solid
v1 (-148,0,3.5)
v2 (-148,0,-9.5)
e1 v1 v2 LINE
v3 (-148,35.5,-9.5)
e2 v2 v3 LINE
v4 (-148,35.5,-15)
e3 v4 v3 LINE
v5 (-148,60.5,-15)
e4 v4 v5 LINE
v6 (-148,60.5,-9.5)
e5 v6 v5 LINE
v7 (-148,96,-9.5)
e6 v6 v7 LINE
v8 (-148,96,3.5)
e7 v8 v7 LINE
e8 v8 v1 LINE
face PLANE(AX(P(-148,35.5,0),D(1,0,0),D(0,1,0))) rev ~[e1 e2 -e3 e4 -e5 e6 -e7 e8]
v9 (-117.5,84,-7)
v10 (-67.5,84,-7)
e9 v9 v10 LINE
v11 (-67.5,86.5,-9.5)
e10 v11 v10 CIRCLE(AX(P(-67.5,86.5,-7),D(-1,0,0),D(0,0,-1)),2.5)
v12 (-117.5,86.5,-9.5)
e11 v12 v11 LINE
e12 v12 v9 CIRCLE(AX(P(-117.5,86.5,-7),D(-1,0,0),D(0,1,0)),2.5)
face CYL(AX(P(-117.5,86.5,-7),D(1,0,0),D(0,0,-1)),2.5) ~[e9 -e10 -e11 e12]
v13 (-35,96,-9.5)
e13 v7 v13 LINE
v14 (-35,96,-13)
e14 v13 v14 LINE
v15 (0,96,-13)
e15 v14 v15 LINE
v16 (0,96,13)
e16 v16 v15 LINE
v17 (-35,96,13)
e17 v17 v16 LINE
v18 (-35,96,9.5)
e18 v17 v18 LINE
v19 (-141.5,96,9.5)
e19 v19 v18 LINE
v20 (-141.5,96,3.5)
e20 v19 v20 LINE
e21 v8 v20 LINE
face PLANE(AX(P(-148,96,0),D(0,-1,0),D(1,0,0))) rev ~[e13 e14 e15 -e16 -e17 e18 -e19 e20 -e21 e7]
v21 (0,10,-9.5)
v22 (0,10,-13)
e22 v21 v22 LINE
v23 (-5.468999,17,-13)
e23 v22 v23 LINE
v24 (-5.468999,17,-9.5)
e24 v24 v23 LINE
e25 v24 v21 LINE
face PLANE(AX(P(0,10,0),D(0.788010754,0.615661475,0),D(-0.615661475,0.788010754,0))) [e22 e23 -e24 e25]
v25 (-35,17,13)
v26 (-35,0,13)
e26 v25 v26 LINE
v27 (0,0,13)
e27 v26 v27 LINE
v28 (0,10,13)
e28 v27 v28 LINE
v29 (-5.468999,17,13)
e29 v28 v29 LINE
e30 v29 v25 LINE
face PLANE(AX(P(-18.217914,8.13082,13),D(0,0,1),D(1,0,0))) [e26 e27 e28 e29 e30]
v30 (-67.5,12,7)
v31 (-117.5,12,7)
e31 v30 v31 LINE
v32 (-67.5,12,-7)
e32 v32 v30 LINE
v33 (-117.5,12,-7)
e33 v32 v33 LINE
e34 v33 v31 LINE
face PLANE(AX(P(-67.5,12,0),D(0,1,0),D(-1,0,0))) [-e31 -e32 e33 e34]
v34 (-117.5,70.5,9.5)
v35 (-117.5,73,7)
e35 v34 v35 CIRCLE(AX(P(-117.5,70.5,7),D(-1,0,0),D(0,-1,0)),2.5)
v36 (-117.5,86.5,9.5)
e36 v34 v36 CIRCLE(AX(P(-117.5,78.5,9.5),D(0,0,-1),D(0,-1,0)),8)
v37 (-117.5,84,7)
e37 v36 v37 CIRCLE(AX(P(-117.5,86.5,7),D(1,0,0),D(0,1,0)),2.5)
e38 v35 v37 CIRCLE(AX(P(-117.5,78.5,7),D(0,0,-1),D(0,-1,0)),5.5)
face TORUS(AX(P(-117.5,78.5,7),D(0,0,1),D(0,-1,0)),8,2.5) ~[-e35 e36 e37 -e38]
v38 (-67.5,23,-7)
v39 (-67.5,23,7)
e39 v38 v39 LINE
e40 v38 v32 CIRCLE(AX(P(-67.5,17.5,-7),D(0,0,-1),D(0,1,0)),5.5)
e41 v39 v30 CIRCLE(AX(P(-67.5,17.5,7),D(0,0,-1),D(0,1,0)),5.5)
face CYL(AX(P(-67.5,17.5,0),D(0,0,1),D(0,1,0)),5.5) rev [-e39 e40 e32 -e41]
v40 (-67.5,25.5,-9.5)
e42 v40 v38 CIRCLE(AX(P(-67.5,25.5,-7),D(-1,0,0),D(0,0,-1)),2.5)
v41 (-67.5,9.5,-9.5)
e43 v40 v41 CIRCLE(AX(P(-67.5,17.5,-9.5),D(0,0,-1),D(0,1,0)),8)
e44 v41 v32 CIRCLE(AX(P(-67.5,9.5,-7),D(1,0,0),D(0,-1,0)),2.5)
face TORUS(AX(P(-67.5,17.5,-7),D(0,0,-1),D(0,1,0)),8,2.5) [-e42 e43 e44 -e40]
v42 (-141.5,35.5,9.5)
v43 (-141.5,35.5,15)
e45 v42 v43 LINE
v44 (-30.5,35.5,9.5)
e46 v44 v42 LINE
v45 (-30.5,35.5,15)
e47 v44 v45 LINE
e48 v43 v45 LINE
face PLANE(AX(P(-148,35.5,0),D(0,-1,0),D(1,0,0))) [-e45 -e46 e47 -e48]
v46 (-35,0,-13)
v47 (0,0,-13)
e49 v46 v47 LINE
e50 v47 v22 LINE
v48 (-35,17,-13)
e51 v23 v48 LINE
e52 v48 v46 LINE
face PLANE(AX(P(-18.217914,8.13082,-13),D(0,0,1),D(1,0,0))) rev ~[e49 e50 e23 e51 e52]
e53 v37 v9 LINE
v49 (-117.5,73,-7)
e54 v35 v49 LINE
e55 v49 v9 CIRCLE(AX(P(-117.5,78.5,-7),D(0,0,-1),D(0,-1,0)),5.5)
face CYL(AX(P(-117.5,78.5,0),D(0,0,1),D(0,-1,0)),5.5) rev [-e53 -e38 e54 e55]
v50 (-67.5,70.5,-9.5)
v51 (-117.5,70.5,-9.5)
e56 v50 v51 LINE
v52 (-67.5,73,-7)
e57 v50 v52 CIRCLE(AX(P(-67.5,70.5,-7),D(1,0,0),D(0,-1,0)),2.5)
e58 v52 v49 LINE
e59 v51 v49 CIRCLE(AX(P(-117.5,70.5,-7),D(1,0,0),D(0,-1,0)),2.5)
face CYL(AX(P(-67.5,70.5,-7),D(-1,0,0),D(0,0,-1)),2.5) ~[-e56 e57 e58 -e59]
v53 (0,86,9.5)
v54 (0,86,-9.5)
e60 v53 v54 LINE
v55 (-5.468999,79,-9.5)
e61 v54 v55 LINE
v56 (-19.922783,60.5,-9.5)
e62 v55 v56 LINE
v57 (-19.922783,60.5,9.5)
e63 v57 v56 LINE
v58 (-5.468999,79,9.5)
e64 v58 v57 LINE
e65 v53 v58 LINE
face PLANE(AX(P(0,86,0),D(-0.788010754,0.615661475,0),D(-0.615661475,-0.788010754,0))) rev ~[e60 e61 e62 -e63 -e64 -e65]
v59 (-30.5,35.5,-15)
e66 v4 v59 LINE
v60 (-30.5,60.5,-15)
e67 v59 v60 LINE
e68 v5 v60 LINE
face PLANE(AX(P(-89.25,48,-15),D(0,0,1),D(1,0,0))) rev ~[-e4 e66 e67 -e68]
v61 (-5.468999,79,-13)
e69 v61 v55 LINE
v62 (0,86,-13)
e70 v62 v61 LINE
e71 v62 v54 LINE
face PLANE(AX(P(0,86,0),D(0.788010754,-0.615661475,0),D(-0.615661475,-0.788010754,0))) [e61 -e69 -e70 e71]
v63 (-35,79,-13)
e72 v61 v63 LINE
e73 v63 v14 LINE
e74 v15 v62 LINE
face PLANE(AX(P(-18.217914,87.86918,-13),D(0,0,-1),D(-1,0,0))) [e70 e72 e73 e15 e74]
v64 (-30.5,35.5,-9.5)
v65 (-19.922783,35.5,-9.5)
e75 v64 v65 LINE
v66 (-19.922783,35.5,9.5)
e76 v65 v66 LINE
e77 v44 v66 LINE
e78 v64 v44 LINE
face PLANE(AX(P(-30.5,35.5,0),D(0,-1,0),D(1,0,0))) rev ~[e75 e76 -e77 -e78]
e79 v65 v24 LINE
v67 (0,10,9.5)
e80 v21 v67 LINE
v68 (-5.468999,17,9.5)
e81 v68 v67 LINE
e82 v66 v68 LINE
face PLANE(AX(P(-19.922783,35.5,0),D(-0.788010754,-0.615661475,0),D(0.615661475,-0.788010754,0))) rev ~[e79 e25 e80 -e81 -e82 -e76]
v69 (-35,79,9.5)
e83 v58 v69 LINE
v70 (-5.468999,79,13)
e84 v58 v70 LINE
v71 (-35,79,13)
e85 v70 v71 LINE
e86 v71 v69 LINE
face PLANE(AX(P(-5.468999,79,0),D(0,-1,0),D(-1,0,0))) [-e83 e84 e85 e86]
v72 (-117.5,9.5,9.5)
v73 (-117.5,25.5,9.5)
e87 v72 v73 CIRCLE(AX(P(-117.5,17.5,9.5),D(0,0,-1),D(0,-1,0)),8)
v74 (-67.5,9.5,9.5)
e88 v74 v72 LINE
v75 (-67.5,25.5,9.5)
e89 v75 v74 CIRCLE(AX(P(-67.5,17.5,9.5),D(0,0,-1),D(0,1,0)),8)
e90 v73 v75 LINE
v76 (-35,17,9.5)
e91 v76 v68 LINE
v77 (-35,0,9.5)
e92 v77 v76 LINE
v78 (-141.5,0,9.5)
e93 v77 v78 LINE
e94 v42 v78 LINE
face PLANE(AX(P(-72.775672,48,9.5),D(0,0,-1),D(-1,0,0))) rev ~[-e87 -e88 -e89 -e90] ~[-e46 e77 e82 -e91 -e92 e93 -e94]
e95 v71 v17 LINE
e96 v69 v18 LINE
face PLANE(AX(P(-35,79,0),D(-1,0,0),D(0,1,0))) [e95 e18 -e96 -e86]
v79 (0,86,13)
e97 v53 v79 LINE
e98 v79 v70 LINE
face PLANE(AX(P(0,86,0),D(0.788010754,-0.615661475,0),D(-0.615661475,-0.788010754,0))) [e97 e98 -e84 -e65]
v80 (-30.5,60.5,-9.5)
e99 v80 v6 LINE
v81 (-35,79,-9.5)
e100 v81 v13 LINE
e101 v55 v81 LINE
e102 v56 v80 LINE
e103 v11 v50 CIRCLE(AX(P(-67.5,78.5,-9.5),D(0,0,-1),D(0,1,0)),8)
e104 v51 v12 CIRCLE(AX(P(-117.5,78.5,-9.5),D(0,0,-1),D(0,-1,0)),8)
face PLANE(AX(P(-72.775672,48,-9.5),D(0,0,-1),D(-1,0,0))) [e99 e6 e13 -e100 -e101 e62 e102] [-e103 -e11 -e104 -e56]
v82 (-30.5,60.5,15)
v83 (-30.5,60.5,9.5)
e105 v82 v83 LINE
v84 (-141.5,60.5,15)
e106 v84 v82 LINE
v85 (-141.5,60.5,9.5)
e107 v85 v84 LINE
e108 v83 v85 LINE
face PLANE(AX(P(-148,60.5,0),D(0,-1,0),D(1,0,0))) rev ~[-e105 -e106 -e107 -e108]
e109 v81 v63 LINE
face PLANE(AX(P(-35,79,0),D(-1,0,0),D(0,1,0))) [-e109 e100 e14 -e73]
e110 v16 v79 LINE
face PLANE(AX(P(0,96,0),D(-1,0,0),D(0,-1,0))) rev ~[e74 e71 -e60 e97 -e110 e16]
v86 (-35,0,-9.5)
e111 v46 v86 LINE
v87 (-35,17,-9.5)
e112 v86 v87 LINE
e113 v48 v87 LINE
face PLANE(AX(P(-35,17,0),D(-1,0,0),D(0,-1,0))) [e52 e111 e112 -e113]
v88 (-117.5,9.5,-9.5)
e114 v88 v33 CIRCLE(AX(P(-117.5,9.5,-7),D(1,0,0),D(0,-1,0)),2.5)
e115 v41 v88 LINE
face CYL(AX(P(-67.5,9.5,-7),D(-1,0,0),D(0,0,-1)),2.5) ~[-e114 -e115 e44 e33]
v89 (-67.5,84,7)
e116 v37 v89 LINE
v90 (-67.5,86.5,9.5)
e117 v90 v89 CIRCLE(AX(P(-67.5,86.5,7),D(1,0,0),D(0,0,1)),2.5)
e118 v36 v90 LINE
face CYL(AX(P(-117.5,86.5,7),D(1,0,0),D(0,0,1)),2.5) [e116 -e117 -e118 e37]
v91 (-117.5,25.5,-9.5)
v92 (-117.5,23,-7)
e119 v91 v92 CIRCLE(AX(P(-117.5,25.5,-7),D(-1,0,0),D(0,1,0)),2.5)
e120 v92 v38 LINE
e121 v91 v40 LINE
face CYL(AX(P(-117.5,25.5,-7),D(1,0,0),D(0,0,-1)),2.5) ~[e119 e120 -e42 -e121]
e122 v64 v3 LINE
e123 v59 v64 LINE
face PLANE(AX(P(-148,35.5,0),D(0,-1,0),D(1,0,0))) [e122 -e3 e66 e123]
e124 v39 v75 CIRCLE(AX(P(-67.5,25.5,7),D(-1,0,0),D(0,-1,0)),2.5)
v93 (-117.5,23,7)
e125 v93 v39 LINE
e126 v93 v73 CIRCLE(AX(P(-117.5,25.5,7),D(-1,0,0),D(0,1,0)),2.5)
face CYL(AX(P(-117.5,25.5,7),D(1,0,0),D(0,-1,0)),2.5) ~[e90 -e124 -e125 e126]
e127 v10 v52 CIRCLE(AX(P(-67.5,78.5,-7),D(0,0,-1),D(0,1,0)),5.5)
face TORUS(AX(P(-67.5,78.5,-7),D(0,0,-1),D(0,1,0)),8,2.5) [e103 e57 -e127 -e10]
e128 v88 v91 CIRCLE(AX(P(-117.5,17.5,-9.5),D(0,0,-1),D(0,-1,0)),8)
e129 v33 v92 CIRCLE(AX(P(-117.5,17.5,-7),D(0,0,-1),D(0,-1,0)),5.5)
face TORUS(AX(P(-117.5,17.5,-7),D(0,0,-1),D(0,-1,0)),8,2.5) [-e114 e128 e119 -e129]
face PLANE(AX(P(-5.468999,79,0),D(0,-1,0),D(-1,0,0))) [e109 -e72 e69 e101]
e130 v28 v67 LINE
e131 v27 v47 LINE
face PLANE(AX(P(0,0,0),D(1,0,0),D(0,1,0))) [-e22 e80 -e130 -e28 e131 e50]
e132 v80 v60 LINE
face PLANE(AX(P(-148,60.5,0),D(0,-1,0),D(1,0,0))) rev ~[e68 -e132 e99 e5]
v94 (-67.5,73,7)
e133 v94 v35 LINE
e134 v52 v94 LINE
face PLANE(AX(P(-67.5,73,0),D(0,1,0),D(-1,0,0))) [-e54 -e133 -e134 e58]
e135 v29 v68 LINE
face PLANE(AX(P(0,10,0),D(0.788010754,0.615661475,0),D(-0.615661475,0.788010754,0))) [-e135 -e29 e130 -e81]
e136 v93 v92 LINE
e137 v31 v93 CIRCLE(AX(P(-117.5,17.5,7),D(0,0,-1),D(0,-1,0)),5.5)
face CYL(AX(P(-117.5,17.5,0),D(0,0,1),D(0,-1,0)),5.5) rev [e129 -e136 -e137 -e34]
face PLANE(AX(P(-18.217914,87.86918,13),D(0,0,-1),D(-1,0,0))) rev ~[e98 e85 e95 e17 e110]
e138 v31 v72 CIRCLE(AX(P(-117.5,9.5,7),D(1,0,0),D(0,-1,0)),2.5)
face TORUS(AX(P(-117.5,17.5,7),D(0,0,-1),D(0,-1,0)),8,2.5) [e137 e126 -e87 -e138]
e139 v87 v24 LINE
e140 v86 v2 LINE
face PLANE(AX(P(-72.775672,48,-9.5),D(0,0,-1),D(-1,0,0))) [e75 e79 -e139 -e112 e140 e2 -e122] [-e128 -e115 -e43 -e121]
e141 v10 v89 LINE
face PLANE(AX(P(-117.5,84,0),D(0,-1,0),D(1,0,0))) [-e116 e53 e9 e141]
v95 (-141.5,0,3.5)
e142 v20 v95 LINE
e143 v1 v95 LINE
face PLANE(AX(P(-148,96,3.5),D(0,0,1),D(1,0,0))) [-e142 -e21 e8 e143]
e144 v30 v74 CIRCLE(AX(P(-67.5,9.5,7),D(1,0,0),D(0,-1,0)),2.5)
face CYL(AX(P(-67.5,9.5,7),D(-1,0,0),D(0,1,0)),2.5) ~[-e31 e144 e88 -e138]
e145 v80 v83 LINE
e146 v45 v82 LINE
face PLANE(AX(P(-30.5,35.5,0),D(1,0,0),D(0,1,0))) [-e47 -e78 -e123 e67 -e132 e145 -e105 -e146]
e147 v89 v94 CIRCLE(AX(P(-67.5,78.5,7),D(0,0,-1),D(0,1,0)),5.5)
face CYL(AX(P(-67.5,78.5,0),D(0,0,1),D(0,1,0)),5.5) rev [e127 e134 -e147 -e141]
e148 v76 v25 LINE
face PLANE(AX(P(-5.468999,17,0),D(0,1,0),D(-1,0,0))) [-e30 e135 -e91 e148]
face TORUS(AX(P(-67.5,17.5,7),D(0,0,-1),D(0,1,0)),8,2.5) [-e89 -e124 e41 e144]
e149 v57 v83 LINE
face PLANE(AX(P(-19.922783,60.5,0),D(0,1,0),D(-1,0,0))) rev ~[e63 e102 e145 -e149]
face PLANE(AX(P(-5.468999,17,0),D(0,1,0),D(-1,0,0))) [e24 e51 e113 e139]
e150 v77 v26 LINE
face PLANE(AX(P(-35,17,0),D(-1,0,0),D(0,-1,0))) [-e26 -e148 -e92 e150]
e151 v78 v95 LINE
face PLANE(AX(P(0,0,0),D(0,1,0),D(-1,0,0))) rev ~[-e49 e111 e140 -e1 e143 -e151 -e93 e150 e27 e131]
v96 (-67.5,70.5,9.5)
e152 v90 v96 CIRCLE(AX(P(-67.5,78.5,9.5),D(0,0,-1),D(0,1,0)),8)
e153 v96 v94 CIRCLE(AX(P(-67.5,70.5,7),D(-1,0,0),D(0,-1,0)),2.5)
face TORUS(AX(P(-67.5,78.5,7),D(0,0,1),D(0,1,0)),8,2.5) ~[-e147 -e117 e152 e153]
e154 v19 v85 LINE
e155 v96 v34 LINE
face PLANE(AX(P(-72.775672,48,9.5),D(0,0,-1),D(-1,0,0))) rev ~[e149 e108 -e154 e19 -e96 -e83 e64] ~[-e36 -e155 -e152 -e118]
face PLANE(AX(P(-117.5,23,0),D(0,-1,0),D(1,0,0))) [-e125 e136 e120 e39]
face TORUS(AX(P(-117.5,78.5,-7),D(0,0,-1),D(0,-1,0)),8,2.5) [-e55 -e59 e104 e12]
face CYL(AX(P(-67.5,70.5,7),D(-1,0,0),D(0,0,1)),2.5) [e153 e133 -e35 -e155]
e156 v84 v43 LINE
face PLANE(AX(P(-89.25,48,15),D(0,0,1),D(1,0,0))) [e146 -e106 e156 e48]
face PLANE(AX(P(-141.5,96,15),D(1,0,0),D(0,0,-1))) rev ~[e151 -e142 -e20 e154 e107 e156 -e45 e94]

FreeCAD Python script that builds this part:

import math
import FreeCAD as App
import Part
import Sketcher
Q = App.Units.Quantity


def edges_at(feature, points):
    """Names of the edges that pass closest to the given points."""
    edges = feature.Shape.Edges
    near = lambda p: min(range(len(edges)), key=lambda i: edges[i].distToShape(Part.Vertex(*p))[0])
    return sorted({f"Edge{near(p) + 1}" for p in points})

doc = App.newDocument("Part")
body = doc.addObject("PartDesign::Body", "Body")

# Sketch on XY plane
sketch1 = body.newObject("Sketcher::SketchObject", "Sketch")
sketch1.AttachmentSupport = (doc.getObject("XY_Plane"), [""])
sketch1.MapMode = "FlatFace"
sketch1.addGeometry([
    Part.LineSegment(App.Vector(-148, 0, 0), App.Vector(0, 0, 0)),  # 0
    Part.LineSegment(App.Vector(0, 0, 0), App.Vector(0, 10, 0)),  # 1
    Part.LineSegment(App.Vector(0, 10, 0), App.Vector(-20, 36, 0)),  # 2
    Part.LineSegment(App.Vector(-20, 36, 0), App.Vector(-30, 36, 0)),  # 3
    Part.LineSegment(App.Vector(-30, 36, 0), App.Vector(-30, 60, 0)),  # 4
    Part.LineSegment(App.Vector(-30, 60, 0), App.Vector(-20, 60, 0)),  # 5
    Part.LineSegment(App.Vector(-20, 60, 0), App.Vector(0, 86, 0)),  # 6
    Part.LineSegment(App.Vector(0, 86, 0), App.Vector(0, 96, 0)),  # 7
    Part.LineSegment(App.Vector(0, 96, 0), App.Vector(-148, 96, 0)),  # 8
    Part.LineSegment(App.Vector(-148, 96, 0), App.Vector(-148, 0, 0)),  # 9
    Part.LineSegment(App.Vector(-118, 23, 0), App.Vector(-68, 23, 0)),  # 10
    Part.ArcOfCircle(Part.Circle(App.Vector(-68, 18, 0), App.Vector(0, 0, 1), 6), math.radians(-90), math.radians(90)),  # 11
    Part.LineSegment(App.Vector(-68, 12, 0), App.Vector(-118, 12, 0)),  # 12
    Part.ArcOfCircle(Part.Circle(App.Vector(-118, 18, 0), App.Vector(0, 0, 1), 6), math.radians(90), math.radians(270)),  # 13
    Part.LineSegment(App.Vector(-118, 84, 0), App.Vector(-68, 84, 0)),  # 14
    Part.ArcOfCircle(Part.Circle(App.Vector(-68, 78, 0), App.Vector(0, 0, 1), 6), math.radians(-90), math.radians(90)),  # 15
    Part.LineSegment(App.Vector(-68, 73, 0), App.Vector(-118, 73, 0)),  # 16
    Part.ArcOfCircle(Part.Circle(App.Vector(-118, 78, 0), App.Vector(0, 0, 1), 6), math.radians(90), math.radians(270)),  # 17
], False)
sketch1.addConstraint([
    Sketcher.Constraint("Coincident", 0, 2, 1, 1),
    Sketcher.Constraint("Coincident", 1, 2, 2, 1),
    Sketcher.Constraint("Coincident", 2, 2, 3, 1),
    Sketcher.Constraint("Coincident", 3, 2, 4, 1),
    Sketcher.Constraint("Coincident", 4, 2, 5, 1),
    Sketcher.Constraint("Coincident", 5, 2, 6, 1),
    Sketcher.Constraint("Coincident", 6, 2, 7, 1),
    Sketcher.Constraint("Coincident", 7, 2, 8, 1),
    Sketcher.Constraint("Coincident", 8, 2, 9, 1),
    Sketcher.Constraint("Coincident", 9, 2, 0, 1),
    Sketcher.Constraint("Tangent", 10, 2, 11, 2),
    Sketcher.Constraint("Tangent", 11, 1, 12, 1),
    Sketcher.Constraint("Tangent", 12, 2, 13, 2),
    Sketcher.Constraint("Tangent", 13, 1, 10, 1),
    Sketcher.Constraint("Tangent", 14, 2, 15, 2),
    Sketcher.Constraint("Tangent", 15, 1, 16, 1),
    Sketcher.Constraint("Tangent", 16, 2, 17, 2),
    Sketcher.Constraint("Tangent", 17, 1, 14, 1),
    Sketcher.Constraint("Horizontal", 0),
    Sketcher.Constraint("Vertical", 1),
    Sketcher.Constraint("Horizontal", 3),
    Sketcher.Constraint("Vertical", 4),
    Sketcher.Constraint("Horizontal", 5),
    Sketcher.Constraint("Vertical", 7),
    Sketcher.Constraint("Horizontal", 8),
    Sketcher.Constraint("Vertical", 9),
    Sketcher.Constraint("Horizontal", 10),
    Sketcher.Constraint("Horizontal", 12),
    Sketcher.Constraint("Horizontal", 14),
    Sketcher.Constraint("Horizontal", 16),
    Sketcher.Constraint("Coincident", 0, 2, -1, 1),
    Sketcher.Constraint("Equal", 13, 15),
    Sketcher.Constraint("PointOnObject", 6, 2, -2),
    Sketcher.Constraint("Vertical", 11, 3, 15, 3),
    Sketcher.Constraint("Vertical", 13, 3, 17, 3),
    Sketcher.Constraint("Vertical", 2, 2, 5, 2),
    Sketcher.Constraint("Equal", 1, 7),
    Sketcher.Constraint("Equal", 2, 6),
    Sketcher.Constraint("Radius", 11, Q("5.5 mm")),
    Sketcher.Constraint("DistanceX", 0, 1, 0, 2, Q("148 mm")),
    Sketcher.Constraint("DistanceX", 10, 1, 10, 2, Q("50 mm")),
    Sketcher.Constraint("DistanceY", 1, 1, 1, 2, Q("10 mm")),
    Sketcher.Constraint("DistanceY", 4, 1, 4, 2, Q("25 mm")),
    Sketcher.Constraint("DistanceY", 9, 2, 9, 1, Q("96 mm")),
    Sketcher.Constraint("Angle", 2, Q("128 deg")),
    Sketcher.Constraint("DistanceY", -1, 1, 10, 2, Q("23 mm")),
    Sketcher.Constraint("DistanceY", -1, 1, 14, 2, Q("84 mm")),
    Sketcher.Constraint("DistanceX", 11, 3, 3, 2, Q("37 mm")),
    Sketcher.Constraint("DistanceX", 11, 3, -1, 1, Q("67.5 mm")),
])
pad1 = body.newObject("PartDesign::Pad", "Pad")
pad1.Profile = sketch1
pad1.Length = 19
pad1.Midplane = True

# Sketch on XY plane
sketch2 = body.newObject("Sketcher::SketchObject", "Sketch001")
sketch2.AttachmentSupport = (doc.getObject("XY_Plane"), [""])
sketch2.MapMode = "FlatFace"
sketch2.addGeometry([
    Part.LineSegment(App.Vector(-148, 60, 0), App.Vector(-148, 36, 0)),
    Part.LineSegment(App.Vector(-148, 36, 0), App.Vector(-30, 36, 0)),
    Part.LineSegment(App.Vector(-30, 36, 0), App.Vector(-30, 60, 0)),
    Part.LineSegment(App.Vector(-30, 60, 0), App.Vector(-148, 60, 0)),
], False)
sketch2.addConstraint([
    Sketcher.Constraint("Coincident", 0, 2, 1, 1),
    Sketcher.Constraint("Coincident", 1, 2, 2, 1),
    Sketcher.Constraint("Coincident", 2, 2, 3, 1),
    Sketcher.Constraint("Coincident", 3, 2, 0, 1),
    Sketcher.Constraint("Vertical", 0),
    Sketcher.Constraint("Horizontal", 1),
    Sketcher.Constraint("Vertical", 2),
    Sketcher.Constraint("Horizontal", 3),
    Sketcher.Constraint("DistanceY", 0, 2, 0, 1, Q("25 mm")),
    Sketcher.Constraint("DistanceX", 1, 1, 1, 2, Q("117.5 mm")),
    Sketcher.Constraint("DistanceX", 0, 2, -1, 1, Q("148 mm")),
    Sketcher.Constraint("DistanceY", -1, 1, 0, 2, Q("35.5 mm")),
])
pad2 = body.newObject("PartDesign::Pad", "Pad001")
pad2.Profile = sketch2
pad2.Length = 30
pad2.Midplane = True

# Sketch on XY plane
sketch3 = body.newObject("Sketcher::SketchObject", "Sketch002")
sketch3.AttachmentSupport = (doc.getObject("XY_Plane"), [""])
sketch3.MapMode = "FlatFace"
sketch3.addGeometry([
    Part.LineSegment(App.Vector(-35, 79, 0), App.Vector(-5, 79, 0)),  # 0
    Part.LineSegment(App.Vector(-5, 79, 0), App.Vector(0, 86, 0)),  # 1
    Part.LineSegment(App.Vector(0, 86, 0), App.Vector(0, 96, 0)),  # 2
    Part.LineSegment(App.Vector(0, 96, 0), App.Vector(-35, 96, 0)),  # 3
    Part.LineSegment(App.Vector(-35, 96, 0), App.Vector(-35, 79, 0)),  # 4
    Part.LineSegment(App.Vector(-5, 17, 0), App.Vector(-35, 17, 0)),  # 5
    Part.LineSegment(App.Vector(-35, 17, 0), App.Vector(-35, 0, 0)),  # 6
    Part.LineSegment(App.Vector(-35, 0, 0), App.Vector(0, 0, 0)),  # 7
    Part.LineSegment(App.Vector(0, 0, 0), App.Vector(0, 10, 0)),  # 8
    Part.LineSegment(App.Vector(0, 10, 0), App.Vector(-5, 17, 0)),  # 9
], False)
sketch3.addConstraint([
    Sketcher.Constraint("Coincident", 0, 2, 1, 1),
    Sketcher.Constraint("Coincident", 1, 2, 2, 1),
    Sketcher.Constraint("Coincident", 2, 2, 3, 1),
    Sketcher.Constraint("Coincident", 3, 2, 4, 1),
    Sketcher.Constraint("Coincident", 4, 2, 0, 1),
    Sketcher.Constraint("Coincident", 5, 2, 6, 1),
    Sketcher.Constraint("Coincident", 6, 2, 7, 1),
    Sketcher.Constraint("Coincident", 7, 2, 8, 1),
    Sketcher.Constraint("Coincident", 8, 2, 9, 1),
    Sketcher.Constraint("Coincident", 9, 2, 5, 1),
    Sketcher.Constraint("Horizontal", 0),
    Sketcher.Constraint("Vertical", 2),
    Sketcher.Constraint("Horizontal", 3),
    Sketcher.Constraint("Vertical", 4),
    Sketcher.Constraint("Horizontal", 5),
    Sketcher.Constraint("Vertical", 6),
    Sketcher.Constraint("Horizontal", 7),
    Sketcher.Constraint("Vertical", 8),
    Sketcher.Constraint("Coincident", 7, 2, -1, 1),
    Sketcher.Constraint("PointOnObject", 1, 2, -2),
    Sketcher.Constraint("Vertical", 4, 2, 5, 2),
    Sketcher.Constraint("Vertical", 0, 2, 9, 2),
    Sketcher.Constraint("Equal", 4, 6),
    Sketcher.Constraint("Equal", 2, 8),
    Sketcher.Constraint("DistanceX", 3, 2, 3, 1, Q("35 mm")),
    Sketcher.Constraint("DistanceY", 2, 1, 2, 2, Q("10 mm")),
    Sketcher.Constraint("DistanceY", 4, 2, 4, 1, Q("17 mm")),
    Sketcher.Constraint("Angle", 1, Q("52 deg")),
    Sketcher.Constraint("DistanceY", -1, 1, 0, 2, Q("79 mm")),
])
pad3 = body.newObject("PartDesign::Pad", "Pad002")
pad3.Profile = sketch3
pad3.Length = 26
pad3.Midplane = True

# Sketch on XZ plane
sketch4 = body.newObject("Sketcher::SketchObject", "Sketch003")
sketch4.AttachmentSupport = (doc.getObject("XZ_Plane"), [""])
sketch4.MapMode = "FlatFace"
sketch4.AttachmentOffset = App.Placement(App.Vector(0, 0, -96), App.Rotation())
sketch4.addGeometry([
    Part.LineSegment(App.Vector(-148, 4, 0), App.Vector(-148, 15, 0)),
    Part.LineSegment(App.Vector(-148, 15, 0), App.Vector(-142, 15, 0)),
    Part.LineSegment(App.Vector(-142, 15, 0), App.Vector(-142, 4, 0)),
    Part.LineSegment(App.Vector(-142, 4, 0), App.Vector(-148, 4, 0)),
], False)
sketch4.addConstraint([
    Sketcher.Constraint("Coincident", 0, 2, 1, 1),
    Sketcher.Constraint("Coincident", 1, 2, 2, 1),
    Sketcher.Constraint("Coincident", 2, 2, 3, 1),
    Sketcher.Constraint("Coincident", 3, 2, 0, 1),
    Sketcher.Constraint("Vertical", 0),
    Sketcher.Constraint("Horizontal", 1),
    Sketcher.Constraint("Vertical", 2),
    Sketcher.Constraint("Horizontal", 3),
    Sketcher.Constraint("DistanceX", 1, 1, 1, 2, Q("6.5 mm")),
    Sketcher.Constraint("DistanceY", 0, 1, 0, 2, Q("11.5 mm")),
    Sketcher.Constraint("DistanceX", 0, 2, -1, 1, Q("148 mm")),
    Sketcher.Constraint("DistanceY", -1, 1, 0, 2, Q("15 mm")),
])
pocket1 = body.newObject("PartDesign::Pocket", "Pocket")
pocket1.Profile = sketch4
pocket1.Type = "ThroughAll"
pocket1.Reversed = True
doc.recompute()

fillet = body.newObject("PartDesign::Fillet", "Fillet")
fillet.Base = (pocket1, edges_at(pocket1, [
    (-123, 78.5, -9.5),
    (-92.5, 73, -9.5),
    (-62, 78.5, -9.5),
    (-92.5, 84, -9.5),
    (-123, 78.5, 9.5),
    (-92.5, 73, 9.5),
    (-62, 78.5, 9.5),
    (-92.5, 84, 9.5),
    (-123, 17.5, -9.5),
    (-92.5, 12, -9.5),
    (-62, 17.5, -9.5),
    (-92.5, 23, -9.5),
    (-123, 17.5, 9.5),
    (-92.5, 12, 9.5),
    (-62, 17.5, 9.5),
    (-92.5, 23, 9.5),
]))
fillet.Radius = 2.5

doc.recompute()
